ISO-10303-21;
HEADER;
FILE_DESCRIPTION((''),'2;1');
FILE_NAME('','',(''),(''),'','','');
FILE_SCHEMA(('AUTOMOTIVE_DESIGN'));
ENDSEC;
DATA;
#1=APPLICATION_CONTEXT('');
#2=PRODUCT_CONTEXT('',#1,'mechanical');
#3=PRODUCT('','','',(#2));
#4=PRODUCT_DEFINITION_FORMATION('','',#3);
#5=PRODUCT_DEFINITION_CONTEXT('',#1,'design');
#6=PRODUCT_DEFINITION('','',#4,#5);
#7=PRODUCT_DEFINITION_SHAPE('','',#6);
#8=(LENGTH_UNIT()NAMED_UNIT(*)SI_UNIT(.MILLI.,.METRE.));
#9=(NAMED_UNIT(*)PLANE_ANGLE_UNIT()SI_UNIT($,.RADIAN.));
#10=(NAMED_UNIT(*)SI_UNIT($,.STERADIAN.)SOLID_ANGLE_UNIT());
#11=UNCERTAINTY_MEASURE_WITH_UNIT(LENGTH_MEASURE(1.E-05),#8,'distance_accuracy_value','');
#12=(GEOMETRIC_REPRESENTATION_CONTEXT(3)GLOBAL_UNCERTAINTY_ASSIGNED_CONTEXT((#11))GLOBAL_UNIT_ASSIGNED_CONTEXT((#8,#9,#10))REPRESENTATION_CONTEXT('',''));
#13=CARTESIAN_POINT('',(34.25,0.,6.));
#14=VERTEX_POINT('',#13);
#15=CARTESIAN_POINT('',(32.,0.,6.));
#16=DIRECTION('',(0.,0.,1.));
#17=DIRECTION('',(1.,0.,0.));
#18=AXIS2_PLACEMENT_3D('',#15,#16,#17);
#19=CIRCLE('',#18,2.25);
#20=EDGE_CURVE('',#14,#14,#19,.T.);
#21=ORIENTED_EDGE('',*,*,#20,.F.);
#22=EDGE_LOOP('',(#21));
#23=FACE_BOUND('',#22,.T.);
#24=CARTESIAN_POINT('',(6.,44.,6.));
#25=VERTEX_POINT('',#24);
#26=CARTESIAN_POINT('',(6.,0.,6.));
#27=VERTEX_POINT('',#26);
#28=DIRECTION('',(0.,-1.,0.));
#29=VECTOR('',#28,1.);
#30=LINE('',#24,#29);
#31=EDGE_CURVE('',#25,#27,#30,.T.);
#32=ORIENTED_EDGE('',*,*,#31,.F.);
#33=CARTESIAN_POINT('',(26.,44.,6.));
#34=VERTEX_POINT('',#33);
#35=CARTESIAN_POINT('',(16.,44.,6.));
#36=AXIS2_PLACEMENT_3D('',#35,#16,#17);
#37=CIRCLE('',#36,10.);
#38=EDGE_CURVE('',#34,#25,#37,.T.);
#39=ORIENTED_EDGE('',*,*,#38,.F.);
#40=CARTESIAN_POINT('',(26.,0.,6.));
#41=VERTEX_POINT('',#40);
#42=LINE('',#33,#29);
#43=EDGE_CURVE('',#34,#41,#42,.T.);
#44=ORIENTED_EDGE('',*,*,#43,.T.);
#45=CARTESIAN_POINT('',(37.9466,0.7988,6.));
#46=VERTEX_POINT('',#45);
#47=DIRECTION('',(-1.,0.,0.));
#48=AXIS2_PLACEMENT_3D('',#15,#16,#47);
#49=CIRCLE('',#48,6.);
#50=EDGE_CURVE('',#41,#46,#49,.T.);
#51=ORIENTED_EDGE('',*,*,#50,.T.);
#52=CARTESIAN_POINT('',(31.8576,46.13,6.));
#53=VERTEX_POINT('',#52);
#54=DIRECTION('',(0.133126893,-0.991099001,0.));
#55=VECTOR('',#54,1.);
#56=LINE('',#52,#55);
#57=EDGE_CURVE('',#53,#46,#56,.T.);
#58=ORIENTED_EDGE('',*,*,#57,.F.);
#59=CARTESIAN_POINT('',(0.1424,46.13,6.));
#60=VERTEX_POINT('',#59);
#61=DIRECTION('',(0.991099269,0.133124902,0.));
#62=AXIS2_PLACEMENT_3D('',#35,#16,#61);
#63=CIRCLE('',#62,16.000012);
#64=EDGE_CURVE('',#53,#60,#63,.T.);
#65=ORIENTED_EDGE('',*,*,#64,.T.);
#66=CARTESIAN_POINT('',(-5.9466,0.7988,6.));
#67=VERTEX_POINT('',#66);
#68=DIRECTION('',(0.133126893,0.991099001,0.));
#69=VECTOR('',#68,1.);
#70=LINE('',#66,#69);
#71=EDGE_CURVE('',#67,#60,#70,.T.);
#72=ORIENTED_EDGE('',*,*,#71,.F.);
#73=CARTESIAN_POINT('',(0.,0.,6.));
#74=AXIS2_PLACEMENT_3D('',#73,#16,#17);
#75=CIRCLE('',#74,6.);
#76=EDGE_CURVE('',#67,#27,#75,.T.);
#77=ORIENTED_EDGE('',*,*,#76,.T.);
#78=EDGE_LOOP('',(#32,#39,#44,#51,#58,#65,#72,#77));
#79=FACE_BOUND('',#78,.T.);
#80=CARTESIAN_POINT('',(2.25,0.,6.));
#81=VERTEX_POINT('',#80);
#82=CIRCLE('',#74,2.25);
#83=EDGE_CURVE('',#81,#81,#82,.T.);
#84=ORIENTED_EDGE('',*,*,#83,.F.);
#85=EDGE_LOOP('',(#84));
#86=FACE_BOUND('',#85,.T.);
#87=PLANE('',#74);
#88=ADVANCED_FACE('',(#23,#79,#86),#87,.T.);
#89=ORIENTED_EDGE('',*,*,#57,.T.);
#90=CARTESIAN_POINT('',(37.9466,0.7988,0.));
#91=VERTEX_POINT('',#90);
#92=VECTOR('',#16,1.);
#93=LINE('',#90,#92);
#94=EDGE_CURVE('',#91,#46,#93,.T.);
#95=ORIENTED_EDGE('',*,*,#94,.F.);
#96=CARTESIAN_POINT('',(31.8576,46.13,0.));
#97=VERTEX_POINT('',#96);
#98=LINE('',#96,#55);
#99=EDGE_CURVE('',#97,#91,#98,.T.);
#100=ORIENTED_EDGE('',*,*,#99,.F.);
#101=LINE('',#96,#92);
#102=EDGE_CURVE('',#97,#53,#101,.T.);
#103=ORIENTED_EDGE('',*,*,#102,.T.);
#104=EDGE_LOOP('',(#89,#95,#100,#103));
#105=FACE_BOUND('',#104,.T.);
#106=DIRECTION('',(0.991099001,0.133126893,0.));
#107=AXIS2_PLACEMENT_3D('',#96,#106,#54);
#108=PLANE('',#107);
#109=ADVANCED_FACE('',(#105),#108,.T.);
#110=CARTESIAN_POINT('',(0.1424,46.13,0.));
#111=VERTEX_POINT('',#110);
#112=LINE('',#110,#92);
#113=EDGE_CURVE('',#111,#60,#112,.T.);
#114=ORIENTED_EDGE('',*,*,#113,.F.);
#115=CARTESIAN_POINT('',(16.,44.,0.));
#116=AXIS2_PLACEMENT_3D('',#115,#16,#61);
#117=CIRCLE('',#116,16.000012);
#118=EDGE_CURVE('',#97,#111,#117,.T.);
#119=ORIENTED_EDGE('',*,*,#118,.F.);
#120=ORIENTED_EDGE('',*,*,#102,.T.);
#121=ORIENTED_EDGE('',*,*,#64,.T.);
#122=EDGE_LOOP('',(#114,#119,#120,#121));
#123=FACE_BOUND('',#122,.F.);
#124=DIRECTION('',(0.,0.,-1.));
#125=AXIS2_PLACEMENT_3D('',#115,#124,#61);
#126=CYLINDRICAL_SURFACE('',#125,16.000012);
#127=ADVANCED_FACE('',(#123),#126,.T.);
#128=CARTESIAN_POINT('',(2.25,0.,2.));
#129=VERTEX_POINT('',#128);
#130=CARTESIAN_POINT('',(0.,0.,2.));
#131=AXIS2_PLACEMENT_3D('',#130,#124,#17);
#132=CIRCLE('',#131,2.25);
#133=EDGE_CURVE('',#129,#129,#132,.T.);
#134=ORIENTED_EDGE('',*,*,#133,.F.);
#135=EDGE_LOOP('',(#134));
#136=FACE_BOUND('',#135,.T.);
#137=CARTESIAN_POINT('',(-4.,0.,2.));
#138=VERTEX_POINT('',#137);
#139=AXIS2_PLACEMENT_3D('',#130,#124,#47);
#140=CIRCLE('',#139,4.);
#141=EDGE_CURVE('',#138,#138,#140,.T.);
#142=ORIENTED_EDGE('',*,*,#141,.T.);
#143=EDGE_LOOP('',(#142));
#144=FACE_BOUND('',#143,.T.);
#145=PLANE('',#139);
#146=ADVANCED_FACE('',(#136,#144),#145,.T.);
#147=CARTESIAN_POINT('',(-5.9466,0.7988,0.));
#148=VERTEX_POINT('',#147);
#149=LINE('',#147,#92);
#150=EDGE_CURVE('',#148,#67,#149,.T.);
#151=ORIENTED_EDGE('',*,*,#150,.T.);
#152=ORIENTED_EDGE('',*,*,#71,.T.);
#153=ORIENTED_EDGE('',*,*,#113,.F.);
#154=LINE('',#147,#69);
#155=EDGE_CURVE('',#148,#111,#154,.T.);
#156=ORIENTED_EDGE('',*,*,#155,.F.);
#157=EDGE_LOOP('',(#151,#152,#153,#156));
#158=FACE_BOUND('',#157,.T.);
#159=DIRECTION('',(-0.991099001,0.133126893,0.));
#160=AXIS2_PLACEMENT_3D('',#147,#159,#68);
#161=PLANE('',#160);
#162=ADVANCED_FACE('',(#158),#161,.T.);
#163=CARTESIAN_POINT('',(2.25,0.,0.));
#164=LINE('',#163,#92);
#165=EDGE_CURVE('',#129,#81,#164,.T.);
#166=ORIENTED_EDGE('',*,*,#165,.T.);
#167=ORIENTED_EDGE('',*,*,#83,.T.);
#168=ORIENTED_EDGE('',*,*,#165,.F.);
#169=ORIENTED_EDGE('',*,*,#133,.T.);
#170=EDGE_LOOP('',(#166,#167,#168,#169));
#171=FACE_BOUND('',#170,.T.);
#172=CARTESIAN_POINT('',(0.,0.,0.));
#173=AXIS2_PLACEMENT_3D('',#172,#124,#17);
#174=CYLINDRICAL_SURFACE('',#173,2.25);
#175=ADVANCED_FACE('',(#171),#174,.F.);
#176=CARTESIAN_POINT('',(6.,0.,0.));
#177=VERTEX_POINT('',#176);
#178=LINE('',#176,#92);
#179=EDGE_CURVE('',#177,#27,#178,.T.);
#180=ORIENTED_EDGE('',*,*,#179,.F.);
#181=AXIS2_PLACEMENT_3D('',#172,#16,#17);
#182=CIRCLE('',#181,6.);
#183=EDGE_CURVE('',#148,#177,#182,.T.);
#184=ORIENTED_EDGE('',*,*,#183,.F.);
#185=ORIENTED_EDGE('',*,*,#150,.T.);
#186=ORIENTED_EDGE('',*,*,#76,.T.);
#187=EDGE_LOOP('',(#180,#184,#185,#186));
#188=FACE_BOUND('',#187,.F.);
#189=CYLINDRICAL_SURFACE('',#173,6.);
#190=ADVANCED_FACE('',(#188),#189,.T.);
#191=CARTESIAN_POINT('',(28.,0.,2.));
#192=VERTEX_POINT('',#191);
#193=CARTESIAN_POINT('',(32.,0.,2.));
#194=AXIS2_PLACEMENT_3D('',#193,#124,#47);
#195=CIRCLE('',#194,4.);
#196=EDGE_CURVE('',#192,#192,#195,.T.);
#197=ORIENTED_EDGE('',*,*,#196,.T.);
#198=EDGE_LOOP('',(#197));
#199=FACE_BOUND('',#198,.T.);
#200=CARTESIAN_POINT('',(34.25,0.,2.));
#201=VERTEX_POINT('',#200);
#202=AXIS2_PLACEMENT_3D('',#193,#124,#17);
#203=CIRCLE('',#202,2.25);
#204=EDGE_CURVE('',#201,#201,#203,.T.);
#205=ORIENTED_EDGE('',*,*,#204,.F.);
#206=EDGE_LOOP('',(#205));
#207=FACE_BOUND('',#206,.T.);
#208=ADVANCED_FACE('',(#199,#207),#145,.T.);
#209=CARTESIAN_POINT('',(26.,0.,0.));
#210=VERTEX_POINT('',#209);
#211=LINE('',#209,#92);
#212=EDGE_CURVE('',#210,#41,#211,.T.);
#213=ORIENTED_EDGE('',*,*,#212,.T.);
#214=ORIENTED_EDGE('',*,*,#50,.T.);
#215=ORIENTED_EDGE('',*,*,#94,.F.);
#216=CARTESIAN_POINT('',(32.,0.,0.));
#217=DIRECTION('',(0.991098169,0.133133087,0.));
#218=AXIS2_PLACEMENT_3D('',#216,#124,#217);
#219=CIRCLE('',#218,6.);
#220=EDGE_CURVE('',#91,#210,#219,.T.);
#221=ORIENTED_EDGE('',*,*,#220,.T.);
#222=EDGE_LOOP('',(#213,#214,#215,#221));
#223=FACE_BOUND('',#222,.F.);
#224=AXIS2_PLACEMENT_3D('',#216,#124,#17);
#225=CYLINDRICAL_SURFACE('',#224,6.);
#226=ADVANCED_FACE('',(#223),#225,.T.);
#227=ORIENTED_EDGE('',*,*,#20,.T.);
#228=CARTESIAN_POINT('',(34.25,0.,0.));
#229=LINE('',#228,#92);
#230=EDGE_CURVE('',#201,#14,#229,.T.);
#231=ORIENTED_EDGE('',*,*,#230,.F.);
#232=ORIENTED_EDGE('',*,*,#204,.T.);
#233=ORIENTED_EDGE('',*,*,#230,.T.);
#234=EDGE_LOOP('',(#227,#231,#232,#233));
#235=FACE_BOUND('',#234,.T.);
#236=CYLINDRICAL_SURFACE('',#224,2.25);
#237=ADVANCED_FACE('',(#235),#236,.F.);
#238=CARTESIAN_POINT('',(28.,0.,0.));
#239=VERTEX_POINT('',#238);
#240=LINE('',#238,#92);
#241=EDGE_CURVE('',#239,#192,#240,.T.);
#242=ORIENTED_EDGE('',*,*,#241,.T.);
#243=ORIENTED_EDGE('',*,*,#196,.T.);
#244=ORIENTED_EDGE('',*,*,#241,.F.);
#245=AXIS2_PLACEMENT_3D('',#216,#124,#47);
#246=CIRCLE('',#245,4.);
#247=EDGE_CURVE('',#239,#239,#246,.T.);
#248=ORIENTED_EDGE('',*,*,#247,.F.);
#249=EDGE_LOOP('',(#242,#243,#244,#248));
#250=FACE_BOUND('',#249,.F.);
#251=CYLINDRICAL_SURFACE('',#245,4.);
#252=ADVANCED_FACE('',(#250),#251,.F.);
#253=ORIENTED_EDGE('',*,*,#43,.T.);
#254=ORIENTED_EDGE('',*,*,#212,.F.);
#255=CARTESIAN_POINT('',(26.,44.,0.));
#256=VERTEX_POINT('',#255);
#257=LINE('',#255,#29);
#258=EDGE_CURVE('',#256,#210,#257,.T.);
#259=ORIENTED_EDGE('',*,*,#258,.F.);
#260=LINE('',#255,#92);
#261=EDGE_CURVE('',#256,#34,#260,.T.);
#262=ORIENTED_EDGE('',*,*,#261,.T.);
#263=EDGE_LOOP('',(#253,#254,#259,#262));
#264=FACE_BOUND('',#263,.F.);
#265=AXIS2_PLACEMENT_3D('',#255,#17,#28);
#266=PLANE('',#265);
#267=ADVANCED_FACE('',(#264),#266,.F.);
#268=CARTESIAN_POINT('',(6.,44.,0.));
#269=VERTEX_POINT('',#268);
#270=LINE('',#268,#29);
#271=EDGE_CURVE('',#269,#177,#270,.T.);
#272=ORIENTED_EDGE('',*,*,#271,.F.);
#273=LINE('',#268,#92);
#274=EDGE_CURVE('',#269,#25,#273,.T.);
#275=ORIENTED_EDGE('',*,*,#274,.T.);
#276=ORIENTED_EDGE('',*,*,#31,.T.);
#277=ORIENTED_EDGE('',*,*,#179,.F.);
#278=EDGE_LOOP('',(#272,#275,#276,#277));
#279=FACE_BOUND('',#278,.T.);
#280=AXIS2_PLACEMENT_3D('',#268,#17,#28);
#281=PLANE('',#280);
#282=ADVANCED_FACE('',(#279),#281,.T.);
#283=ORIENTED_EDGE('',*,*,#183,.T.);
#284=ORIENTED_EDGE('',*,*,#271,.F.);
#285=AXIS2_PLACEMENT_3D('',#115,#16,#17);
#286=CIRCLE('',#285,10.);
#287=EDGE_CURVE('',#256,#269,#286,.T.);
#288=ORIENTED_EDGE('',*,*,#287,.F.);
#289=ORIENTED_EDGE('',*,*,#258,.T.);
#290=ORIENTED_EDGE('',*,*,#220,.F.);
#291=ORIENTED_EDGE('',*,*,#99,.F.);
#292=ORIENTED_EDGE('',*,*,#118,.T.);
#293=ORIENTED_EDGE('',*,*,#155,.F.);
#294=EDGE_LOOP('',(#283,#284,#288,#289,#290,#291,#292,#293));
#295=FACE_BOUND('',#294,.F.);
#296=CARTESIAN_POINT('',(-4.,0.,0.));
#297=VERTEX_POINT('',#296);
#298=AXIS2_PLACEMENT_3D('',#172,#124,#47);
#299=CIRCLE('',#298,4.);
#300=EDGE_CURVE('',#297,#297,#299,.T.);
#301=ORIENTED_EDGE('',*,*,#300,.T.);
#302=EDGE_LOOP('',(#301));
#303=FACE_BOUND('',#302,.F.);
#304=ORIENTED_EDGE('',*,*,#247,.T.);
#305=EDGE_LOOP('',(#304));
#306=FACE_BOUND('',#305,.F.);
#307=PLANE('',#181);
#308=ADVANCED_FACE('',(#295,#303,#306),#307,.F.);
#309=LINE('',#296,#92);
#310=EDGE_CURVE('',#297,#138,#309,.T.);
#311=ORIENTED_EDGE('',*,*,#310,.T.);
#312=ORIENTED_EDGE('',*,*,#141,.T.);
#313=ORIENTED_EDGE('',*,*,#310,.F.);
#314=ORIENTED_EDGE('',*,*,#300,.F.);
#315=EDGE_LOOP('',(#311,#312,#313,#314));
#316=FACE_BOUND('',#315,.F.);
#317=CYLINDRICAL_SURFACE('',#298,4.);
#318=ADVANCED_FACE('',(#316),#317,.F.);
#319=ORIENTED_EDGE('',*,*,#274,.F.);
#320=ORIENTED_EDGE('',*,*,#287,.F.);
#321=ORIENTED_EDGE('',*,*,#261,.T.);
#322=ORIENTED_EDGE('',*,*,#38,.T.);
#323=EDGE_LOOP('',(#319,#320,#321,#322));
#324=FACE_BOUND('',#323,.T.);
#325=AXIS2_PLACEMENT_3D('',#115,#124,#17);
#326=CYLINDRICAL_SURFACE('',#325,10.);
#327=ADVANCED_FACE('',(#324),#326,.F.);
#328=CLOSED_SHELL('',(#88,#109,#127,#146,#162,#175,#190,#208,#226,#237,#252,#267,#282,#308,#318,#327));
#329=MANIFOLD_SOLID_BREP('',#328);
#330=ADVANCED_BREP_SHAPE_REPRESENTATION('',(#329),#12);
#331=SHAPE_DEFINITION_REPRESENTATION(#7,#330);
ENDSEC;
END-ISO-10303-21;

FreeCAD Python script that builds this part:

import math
import FreeCAD as App
import Part
import Sketcher

doc = App.newDocument("Part")
body = doc.addObject("PartDesign::Body", "Body")

sketch1 = body.newObject("Sketcher::SketchObject", "Sketch")
sketch1.AttachmentSupport = (doc.getObject("XY_Plane"), [""])
sketch1.MapMode = "FlatFace"
sketch1.addGeometry(Part.ArcOfCircle(Part.Circle(App.Vector(16, 44, 0), App.Vector(0, 0, 1), 10), math.radians(0), math.radians(180)), False)
sketch1.addGeometry(Part.LineSegment(App.Vector(26, 44, 0), App.Vector(26, 0, 0)), False)
sketch1.addGeometry(Part.ArcOfCircle(Part.Circle(App.Vector(32, 0, 0), App.Vector(0, 0, 1), 6), math.radians(180), math.radians(368)), False)
sketch1.addGeometry(Part.LineSegment(App.Vector(37.9, 0.8, 0), App.Vector(31.9, 46.1, 0)), False)
sketch1.addGeometry(Part.ArcOfCircle(Part.Circle(App.Vector(16, 44, 0), App.Vector(0, 0, 1), 16), math.radians(8), math.radians(172)), False)
sketch1.addGeometry(Part.LineSegment(App.Vector(0.1, 46.1, 0), App.Vector(-5.9, 0.8, 0)), False)
sketch1.addGeometry(Part.ArcOfCircle(Part.Circle(App.Vector(0, 0, 0), App.Vector(0, 0, 1), 6), math.radians(172), math.radians(360)), False)
sketch1.addGeometry(Part.LineSegment(App.Vector(6, 0, 0), App.Vector(6, 44, 0)), False)
sketch1.addGeometry(Part.Circle(App.Vector(0, 0, 0), App.Vector(0, 0, 1), 2.2), False)
sketch1.addGeometry(Part.Circle(App.Vector(32, 0, 0), App.Vector(0, 0, 1), 2.2), False)
sketch1.addConstraint(Sketcher.Constraint("Tangent", 0, 1, 1, 1))
sketch1.addConstraint(Sketcher.Constraint("Tangent", 1, 2, 2, 1))
sketch1.addConstraint(Sketcher.Constraint("Tangent", 2, 2, 3, 1))
sketch1.addConstraint(Sketcher.Constraint("Tangent", 3, 2, 4, 1))
sketch1.addConstraint(Sketcher.Constraint("Tangent", 4, 2, 5, 1))
sketch1.addConstraint(Sketcher.Constraint("Tangent", 5, 2, 6, 1))
sketch1.addConstraint(Sketcher.Constraint("Tangent", 6, 2, 7, 1))
sketch1.addConstraint(Sketcher.Constraint("Tangent", 7, 2, 0, 2))
sketch1.addConstraint(Sketcher.Constraint("Vertical", 1))
sketch1.addConstraint(Sketcher.Constraint("Vertical", 7))
sketch1.addConstraint(Sketcher.Constraint("Coincident", 6, 3, -1, 1))
sketch1.addConstraint(Sketcher.Constraint("Coincident", 8, 3, -1, 1))
sketch1.addConstraint(Sketcher.Constraint("Coincident", 4, 3, 0, 3))
sketch1.addConstraint(Sketcher.Constraint("Coincident", 9, 3, 2, 3))
sketch1.addConstraint(Sketcher.Constraint("Equal", 2, 6))
sketch1.addConstraint(Sketcher.Constraint("Equal", 8, 9))
sketch1.addConstraint(Sketcher.Constraint("PointOnObject", 2, 3, -1))
sketch1.addConstraint(Sketcher.Constraint("Radius", 0, 10.0))
sketch1.addConstraint(Sketcher.Constraint("Radius", 2, 6.0))
sketch1.addConstraint(Sketcher.Constraint("Radius", 4, 16.0))
sketch1.addConstraint(Sketcher.Constraint("Diameter", 8, 4.5))
sketch1.addConstraint(Sketcher.Constraint("DistanceY", 1, 2, 1, 1, 44.0))
pad1 = body.newObject("PartDesign::Pad", "Pad")
pad1.Profile = sketch1
pad1.Length = 6

sketch2 = body.newObject("Sketcher::SketchObject", "Sketch001")
sketch2.AttachmentSupport = (doc.getObject("XY_Plane"), [""])
sketch2.MapMode = "FlatFace"
sketch2.addGeometry(Part.Circle(App.Vector(32, 0, 0), App.Vector(0, 0, 1), 4), False)
sketch2.addGeometry(Part.Circle(App.Vector(0, 0, 0), App.Vector(0, 0, 1), 4), False)
sketch2.addConstraint(Sketcher.Constraint("Coincident", 1, 3, -1, 1))
sketch2.addConstraint(Sketcher.Constraint("Equal", 0, 1))
sketch2.addConstraint(Sketcher.Constraint("PointOnObject", 0, 3, -1))
sketch2.addConstraint(Sketcher.Constraint("Diameter", 0, 8.0))
sketch2.addConstraint(Sketcher.Constraint("DistanceX", -1, 1, 0, 3, 32.0))
pocket1 = body.newObject("PartDesign::Pocket", "Pocket")
pocket1.Profile = sketch2
pocket1.Length = 2
pocket1.Reversed = True

doc.recompute()
